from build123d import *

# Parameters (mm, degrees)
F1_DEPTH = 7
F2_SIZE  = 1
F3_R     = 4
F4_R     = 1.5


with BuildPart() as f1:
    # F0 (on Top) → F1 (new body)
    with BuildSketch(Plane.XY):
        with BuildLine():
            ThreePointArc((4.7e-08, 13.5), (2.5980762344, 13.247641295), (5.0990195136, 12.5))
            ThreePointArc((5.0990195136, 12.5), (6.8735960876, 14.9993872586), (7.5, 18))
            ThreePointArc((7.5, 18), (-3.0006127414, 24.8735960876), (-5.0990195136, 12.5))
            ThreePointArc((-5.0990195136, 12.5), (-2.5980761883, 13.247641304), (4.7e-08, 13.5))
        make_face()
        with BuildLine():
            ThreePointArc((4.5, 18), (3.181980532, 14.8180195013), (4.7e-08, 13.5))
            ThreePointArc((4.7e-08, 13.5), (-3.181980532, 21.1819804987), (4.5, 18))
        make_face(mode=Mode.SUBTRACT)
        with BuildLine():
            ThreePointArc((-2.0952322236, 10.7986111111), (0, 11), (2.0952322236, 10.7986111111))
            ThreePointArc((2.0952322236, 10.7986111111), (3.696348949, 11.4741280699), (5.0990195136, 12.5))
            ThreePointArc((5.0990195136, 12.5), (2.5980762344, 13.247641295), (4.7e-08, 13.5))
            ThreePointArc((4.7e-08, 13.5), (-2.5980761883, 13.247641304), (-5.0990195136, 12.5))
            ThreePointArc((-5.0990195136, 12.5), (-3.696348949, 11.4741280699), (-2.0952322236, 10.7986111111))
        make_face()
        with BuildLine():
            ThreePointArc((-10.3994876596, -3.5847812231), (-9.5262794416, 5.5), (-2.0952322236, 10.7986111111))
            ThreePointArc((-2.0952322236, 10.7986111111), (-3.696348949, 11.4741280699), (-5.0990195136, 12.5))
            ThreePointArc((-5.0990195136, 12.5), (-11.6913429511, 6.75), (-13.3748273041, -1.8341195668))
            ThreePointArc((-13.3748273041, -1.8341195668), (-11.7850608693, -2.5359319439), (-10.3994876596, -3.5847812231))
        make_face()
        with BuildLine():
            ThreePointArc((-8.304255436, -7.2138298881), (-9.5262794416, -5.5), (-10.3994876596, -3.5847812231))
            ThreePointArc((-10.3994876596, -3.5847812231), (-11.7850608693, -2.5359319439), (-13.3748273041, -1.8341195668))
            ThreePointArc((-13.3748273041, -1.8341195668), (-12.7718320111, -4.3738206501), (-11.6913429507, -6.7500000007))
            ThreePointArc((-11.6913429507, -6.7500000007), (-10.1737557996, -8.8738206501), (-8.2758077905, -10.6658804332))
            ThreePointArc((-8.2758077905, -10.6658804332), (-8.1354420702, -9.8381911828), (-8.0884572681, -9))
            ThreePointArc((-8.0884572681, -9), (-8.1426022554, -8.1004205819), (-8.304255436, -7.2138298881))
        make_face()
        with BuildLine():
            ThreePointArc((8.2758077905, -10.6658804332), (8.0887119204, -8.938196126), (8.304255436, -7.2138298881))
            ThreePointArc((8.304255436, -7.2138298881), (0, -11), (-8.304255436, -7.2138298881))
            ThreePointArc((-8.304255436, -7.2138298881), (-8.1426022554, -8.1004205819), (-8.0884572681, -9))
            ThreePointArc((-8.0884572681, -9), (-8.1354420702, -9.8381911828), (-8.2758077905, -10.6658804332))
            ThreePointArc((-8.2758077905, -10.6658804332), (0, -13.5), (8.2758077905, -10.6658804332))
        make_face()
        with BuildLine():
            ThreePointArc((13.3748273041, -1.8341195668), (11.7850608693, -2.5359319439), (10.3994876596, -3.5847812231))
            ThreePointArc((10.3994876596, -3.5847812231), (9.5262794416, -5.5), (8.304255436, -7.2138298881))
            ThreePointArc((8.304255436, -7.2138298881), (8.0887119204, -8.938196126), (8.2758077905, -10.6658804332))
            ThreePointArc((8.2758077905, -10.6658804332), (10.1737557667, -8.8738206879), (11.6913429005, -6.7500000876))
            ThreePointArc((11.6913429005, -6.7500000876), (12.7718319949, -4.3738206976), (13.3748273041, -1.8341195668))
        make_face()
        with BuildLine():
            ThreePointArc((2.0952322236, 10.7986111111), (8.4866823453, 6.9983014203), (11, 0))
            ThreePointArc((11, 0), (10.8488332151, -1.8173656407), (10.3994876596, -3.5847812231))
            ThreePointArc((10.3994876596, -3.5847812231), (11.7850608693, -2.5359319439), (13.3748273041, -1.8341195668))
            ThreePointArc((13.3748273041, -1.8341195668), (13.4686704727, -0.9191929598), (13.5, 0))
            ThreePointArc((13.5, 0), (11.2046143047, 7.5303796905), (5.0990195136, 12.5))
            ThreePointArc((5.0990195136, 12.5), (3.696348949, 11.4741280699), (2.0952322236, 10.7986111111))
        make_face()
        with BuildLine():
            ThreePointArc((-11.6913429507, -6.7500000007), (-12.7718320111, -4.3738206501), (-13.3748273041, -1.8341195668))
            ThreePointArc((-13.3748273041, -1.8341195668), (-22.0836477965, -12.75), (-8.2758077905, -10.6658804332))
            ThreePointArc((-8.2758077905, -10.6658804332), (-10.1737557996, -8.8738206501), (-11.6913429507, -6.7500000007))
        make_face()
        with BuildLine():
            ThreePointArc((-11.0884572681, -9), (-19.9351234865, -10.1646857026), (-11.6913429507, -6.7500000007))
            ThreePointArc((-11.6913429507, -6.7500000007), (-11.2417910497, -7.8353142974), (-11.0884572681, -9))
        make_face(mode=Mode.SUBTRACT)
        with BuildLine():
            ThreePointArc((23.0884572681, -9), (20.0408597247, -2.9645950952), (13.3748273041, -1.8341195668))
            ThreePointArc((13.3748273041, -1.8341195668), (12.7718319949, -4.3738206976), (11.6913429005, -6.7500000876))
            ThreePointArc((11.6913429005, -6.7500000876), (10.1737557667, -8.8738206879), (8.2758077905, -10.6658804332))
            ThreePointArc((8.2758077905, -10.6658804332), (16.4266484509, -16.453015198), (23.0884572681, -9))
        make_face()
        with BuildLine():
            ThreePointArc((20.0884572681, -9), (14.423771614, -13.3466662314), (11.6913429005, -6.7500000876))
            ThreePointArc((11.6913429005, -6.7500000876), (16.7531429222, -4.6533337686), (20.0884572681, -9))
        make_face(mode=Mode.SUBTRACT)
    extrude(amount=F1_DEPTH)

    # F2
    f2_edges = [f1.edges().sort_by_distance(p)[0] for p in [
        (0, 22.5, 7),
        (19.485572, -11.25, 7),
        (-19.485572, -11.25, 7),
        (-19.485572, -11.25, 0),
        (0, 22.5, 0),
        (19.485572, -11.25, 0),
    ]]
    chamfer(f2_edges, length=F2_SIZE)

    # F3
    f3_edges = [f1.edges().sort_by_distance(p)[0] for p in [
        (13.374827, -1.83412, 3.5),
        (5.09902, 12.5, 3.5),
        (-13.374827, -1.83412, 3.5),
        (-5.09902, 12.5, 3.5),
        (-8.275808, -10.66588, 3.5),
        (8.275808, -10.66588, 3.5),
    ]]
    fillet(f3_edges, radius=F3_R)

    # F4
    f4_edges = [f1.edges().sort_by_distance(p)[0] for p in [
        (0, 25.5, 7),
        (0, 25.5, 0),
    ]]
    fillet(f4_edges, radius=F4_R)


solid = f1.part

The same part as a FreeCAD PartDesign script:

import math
import FreeCAD as App
import Part
import Sketcher
from FreeCAD import Vector


def edges_at(feature, points):
    """Names of the edges that pass closest to the given points."""
    edges = feature.Shape.Edges
    near = lambda p: min(range(len(edges)), key=lambda i: edges[i].distToShape(Part.Vertex(*p))[0])
    return sorted({f"Edge{near(p) + 1}" for p in points})

doc = App.newDocument("Part")
body = doc.addObject("PartDesign::Body", "Body")

sketch1 = body.newObject("Sketcher::SketchObject", "Sketch")
sketch1.AttachmentSupport = (doc.getObject("XY_Plane"), [""])
sketch1.MapMode = "FlatFace"
sketch1.addGeometry([
    Part.ArcOfCircle(Part.Circle(Vector(0, 18, 0), Vector(0, 0, 1), 7.5), math.radians(-47), math.radians(0)),
    Part.ArcOfCircle(Part.Circle(Vector(0, 18, 0), Vector(0, 0, 1), 7.5), math.radians(0), math.radians(227)),
    Part.ArcOfCircle(Part.Circle(Vector(0, 0, 0), Vector(0, 0, 1), 13.5), math.radians(112), math.radians(188)),
    Part.ArcOfCircle(Part.Circle(Vector(-15.6, -9, 0), Vector(0, 0, 1), 7.5), math.radians(73), math.radians(347)),
    Part.ArcOfCircle(Part.Circle(Vector(0, 0, 0), Vector(0, 0, 1), 13.5), math.radians(-128), math.radians(-52)),
    Part.ArcOfCircle(Part.Circle(Vector(15.6, -9, 0), Vector(0, 0, 1), 7.5), math.radians(-167), math.radians(0)),
    Part.ArcOfCircle(Part.Circle(Vector(15.6, -9, 0), Vector(0, 0, 1), 7.5), math.radians(0), math.radians(107)),
    Part.ArcOfCircle(Part.Circle(Vector(0, 0, 0), Vector(0, 0, 1), 13.5), math.radians(-7.81), math.radians(0)),
    Part.ArcOfCircle(Part.Circle(Vector(0, 0, 0), Vector(0, 0, 1), 13.5), math.radians(0), math.radians(68)),
    Part.ArcOfCircle(Part.Circle(Vector(0, 0, 0), Vector(0, 0, 1), 11), math.radians(-19.02), math.radians(0)),
    Part.ArcOfCircle(Part.Circle(Vector(0, 0, 0), Vector(0, 0, 1), 11), math.radians(-41), math.radians(-19)),
    Part.ArcOfCircle(Part.Circle(Vector(0, 0, 0), Vector(0, 0, 1), 11), math.radians(-139), math.radians(-41)),
    Part.ArcOfCircle(Part.Circle(Vector(0, 0, 0), Vector(0, 0, 1), 11), math.radians(-161), math.radians(-139)),
    Part.ArcOfCircle(Part.Circle(Vector(0, 0, 0), Vector(0, 0, 1), 11), math.radians(101), math.radians(199)),
    Part.ArcOfCircle(Part.Circle(Vector(0, 0, 0), Vector(0, 0, 1), 11), math.radians(79), math.radians(101)),
    Part.ArcOfCircle(Part.Circle(Vector(0, 0, 0), Vector(0, 0, 1), 11), math.radians(0), math.radians(79)),
    Part.ArcOfCircle(Part.Circle(Vector(-15.6, -9, 0), Vector(0, 0, 1), 4.5), math.radians(0), math.radians(30)),
    Part.ArcOfCircle(Part.Circle(Vector(-15.6, -9, 0), Vector(0, 0, 1), 4.5), math.radians(30), math.radians(360)),
    Part.ArcOfCircle(Part.Circle(Vector(0, 18, 0), Vector(0, 0, 1), 4.5), math.radians(-90), math.radians(0)),
    Part.ArcOfCircle(Part.Circle(Vector(0, 18, 0), Vector(0, 0, 1), 4.5), math.radians(0), math.radians(270)),
    Part.ArcOfCircle(Part.Circle(Vector(15.6, -9, 0), Vector(0, 0, 1), 4.5), math.radians(150), math.radians(360)),
    Part.ArcOfCircle(Part.Circle(Vector(15.6, -9, 0), Vector(0, 0, 1), 4.5), math.radians(0), math.radians(150)),
], False)
sketch1.addConstraint([
    Sketcher.Constraint("Tangent", 0, 2, 1, 1),
    Sketcher.Constraint("Coincident", 1, 2, 2, 1),
    Sketcher.Constraint("Coincident", 2, 2, 3, 1),
    Sketcher.Constraint("Coincident", 3, 2, 4, 1),
    Sketcher.Constraint("Coincident", 4, 2, 5, 1),
    Sketcher.Constraint("Tangent", 5, 2, 6, 1),
    Sketcher.Constraint("Coincident", 6, 2, 7, 1),
    Sketcher.Constraint("Tangent", 7, 2, 8, 1),
    Sketcher.Constraint("Coincident", 8, 2, 0, 1),
    Sketcher.Constraint("Tangent", 9, 1, 10, 2),
    Sketcher.Constraint("Tangent", 10, 1, 11, 2),
    Sketcher.Constraint("Tangent", 11, 1, 12, 2),
    Sketcher.Constraint("Tangent", 12, 1, 13, 2),
    Sketcher.Constraint("Tangent", 13, 1, 14, 2),
    Sketcher.Constraint("Tangent", 14, 1, 15, 2),
    Sketcher.Constraint("Tangent", 15, 1, 9, 2),
    Sketcher.Constraint("Tangent", 16, 1, 17, 2),
    Sketcher.Constraint("Coincident", 17, 1, 16, 2),
    Sketcher.Constraint("Tangent", 18, 1, 19, 2),
    Sketcher.Constraint("Coincident", 19, 1, 18, 2),
    Sketcher.Constraint("Tangent", 20, 1, 21, 2),
    Sketcher.Constraint("Coincident", 21, 1, 20, 2),
    Sketcher.Constraint("Coincident", 2, 3, -1, 1),
    Sketcher.Constraint("Coincident", 4, 3, -1, 1),
    Sketcher.Constraint("Coincident", 7, 3, -1, 1),
    Sketcher.Constraint("Coincident", 9, 3, -1, 1),
    Sketcher.Constraint("Coincident", 11, 3, -1, 1),
    Sketcher.Constraint("Coincident", 13, 3, -1, 1),
    Sketcher.Constraint("Coincident", 16, 3, 3, 3),
    Sketcher.Constraint("Coincident", 18, 3, 0, 3),
    Sketcher.Constraint("Coincident", 20, 3, 5, 3),
    Sketcher.Constraint("Equal", 0, 1),
    Sketcher.Constraint("Equal", 1, 3),
    Sketcher.Constraint("Equal", 2, 4),
    Sketcher.Constraint("Equal", 3, 5),
    Sketcher.Constraint("Equal", 5, 6),
    Sketcher.Constraint("Equal", 4, 7),
    Sketcher.Constraint("Equal", 7, 8),
    Sketcher.Constraint("Equal", 17, 18),
    Sketcher.Constraint("Equal", 19, 20),
    Sketcher.Constraint("Symmetric", 3, 3, 5, 3, -2),
    Sketcher.Constraint("PointOnObject", 0, 3, -2),
    Sketcher.Constraint("PointOnObject", 7, 2, -1),
    Sketcher.Constraint("PointOnObject", 15, 1, -1),
    Sketcher.Constraint("PointOnObject", 18, 1, -2),
    Sketcher.Constraint("Horizontal", 19, 3, 0, 2),
    Sketcher.Constraint("Horizontal", 21, 3, 5, 2),
    Sketcher.Constraint("Horizontal", 10, 1, 11, 1),
    Sketcher.Constraint("Horizontal", 9, 1, 12, 1),
    Sketcher.Constraint("Horizontal", 13, 1, 14, 1),
    Sketcher.Constraint("Horizontal", 5, 2, 16, 1),
    Sketcher.Constraint("Horizontal", 0, 2, 19, 1),
    Sketcher.Constraint("Horizontal", 17, 1, 20, 1),
    Sketcher.Constraint("Horizontal", 16, 1, 21, 1),
    Sketcher.Constraint("Radius", 9, 11.0),
    Sketcher.Constraint("Radius", 0, 7.5),
    Sketcher.Constraint("Radius", 2, 13.5),
    Sketcher.Constraint("Radius", 16, 4.5),
    Sketcher.Constraint("DistanceY", -1, 1, 0, 3, 18.0),
    Sketcher.Constraint("DistanceY", 3, 3, -1, 1, 9.0),
    Sketcher.Constraint("DistanceY", 17, 1, -1, 1, 6.75),
    Sketcher.Constraint("DistanceY", 4, 2, 9, 1, 7.081099),
    Sketcher.Constraint("DistanceX", 10, 1, 5, 3, 7.284202),
    Sketcher.Constraint("DistanceY", 2, 2, -1, 1, 1.83412),
    Sketcher.Constraint("DistanceY", -1, 1, 13, 1, 10.798611),
])
pad1 = body.newObject("PartDesign::Pad", "Pad")
pad1.Profile = sketch1
pad1.Length = 7
doc.recompute()

chamfer = body.newObject("PartDesign::Chamfer", "Chamfer")
chamfer.Base = (pad1, edges_at(pad1, [
    (-3.182, 21.182, 7),
    (14.424, -13.347, 7),
    (-19.935, -10.165, 7),
    (-19.935, -10.165, 0),
    (-3.182, 21.182, 0),
    (14.424, -13.347, 0),
]))
chamfer.Size = 1
doc.recompute()

fillet = body.newObject("PartDesign::Fillet", "Fillet")
fillet.Base = (chamfer, edges_at(chamfer, [
    (13.375, -1.834, 3.5),
    (5.099, 12.5, 3.5),
    (-13.375, -1.834, 3.5),
    (-5.099, 12.5, 3.5),
    (-8.276, -10.666, 3.5),
    (8.276, -10.666, 3.5),
]))
fillet.Radius = 4
doc.recompute()

fillet2 = body.newObject("PartDesign::Fillet", "Fillet001")
fillet2.Base = (fillet, edges_at(fillet, [(-1.382, 25.372, 7), (-1.382, 25.372, 0)]))
fillet2.Radius = 1.5

doc.recompute()
